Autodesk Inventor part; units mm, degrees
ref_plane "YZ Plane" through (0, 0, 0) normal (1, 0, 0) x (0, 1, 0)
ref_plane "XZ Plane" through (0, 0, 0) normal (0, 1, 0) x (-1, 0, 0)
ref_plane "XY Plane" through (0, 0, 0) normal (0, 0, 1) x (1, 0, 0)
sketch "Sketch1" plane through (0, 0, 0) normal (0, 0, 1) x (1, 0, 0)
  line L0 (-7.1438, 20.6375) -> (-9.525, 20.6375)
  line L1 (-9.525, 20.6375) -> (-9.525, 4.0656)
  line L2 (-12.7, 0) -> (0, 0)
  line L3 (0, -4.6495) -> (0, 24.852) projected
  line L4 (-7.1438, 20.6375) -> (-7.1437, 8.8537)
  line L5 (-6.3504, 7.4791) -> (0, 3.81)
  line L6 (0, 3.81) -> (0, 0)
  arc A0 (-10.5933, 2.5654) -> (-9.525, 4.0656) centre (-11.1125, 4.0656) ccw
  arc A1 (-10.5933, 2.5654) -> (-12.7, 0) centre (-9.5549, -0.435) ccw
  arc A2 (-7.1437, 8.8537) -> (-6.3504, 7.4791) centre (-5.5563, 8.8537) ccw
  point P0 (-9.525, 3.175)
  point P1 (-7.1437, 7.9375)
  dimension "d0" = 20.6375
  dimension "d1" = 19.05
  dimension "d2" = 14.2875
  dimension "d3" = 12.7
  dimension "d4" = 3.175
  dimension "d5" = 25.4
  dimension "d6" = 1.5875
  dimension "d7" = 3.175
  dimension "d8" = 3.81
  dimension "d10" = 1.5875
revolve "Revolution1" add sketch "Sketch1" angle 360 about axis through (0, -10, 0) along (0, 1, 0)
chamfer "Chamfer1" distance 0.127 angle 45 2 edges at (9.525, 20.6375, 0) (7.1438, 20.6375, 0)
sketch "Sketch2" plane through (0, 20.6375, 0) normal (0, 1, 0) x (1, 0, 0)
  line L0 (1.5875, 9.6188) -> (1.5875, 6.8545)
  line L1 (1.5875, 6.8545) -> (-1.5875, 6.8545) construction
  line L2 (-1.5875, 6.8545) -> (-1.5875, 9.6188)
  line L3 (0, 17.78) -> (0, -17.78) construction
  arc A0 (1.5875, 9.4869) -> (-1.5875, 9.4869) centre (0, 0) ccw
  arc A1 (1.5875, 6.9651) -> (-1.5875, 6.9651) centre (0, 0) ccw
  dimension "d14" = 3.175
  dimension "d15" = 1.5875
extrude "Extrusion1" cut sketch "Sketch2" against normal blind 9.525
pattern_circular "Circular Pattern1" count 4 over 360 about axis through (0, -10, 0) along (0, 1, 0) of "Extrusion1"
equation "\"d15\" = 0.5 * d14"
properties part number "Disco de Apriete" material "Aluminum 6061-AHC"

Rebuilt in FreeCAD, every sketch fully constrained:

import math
import FreeCAD as App
import Part
import Sketcher
Q = App.Units.Quantity


def edges_at(feature, points):
    """Names of the edges that pass closest to the given points."""
    edges = feature.Shape.Edges
    near = lambda p: min(range(len(edges)), key=lambda i: edges[i].distToShape(Part.Vertex(*p))[0])
    return sorted({f"Edge{near(p) + 1}" for p in points})

doc = App.newDocument("Part")
body = doc.addObject("PartDesign::Body", "Body")

# Sketch on XY plane
sketch1 = body.newObject("Sketcher::SketchObject", "Sketch")
sketch1.AttachmentSupport = (doc.getObject("XY_Plane"), [""])
sketch1.MapMode = "FlatFace"
sketch1.addGeometry(Part.LineSegment(App.Vector(-7.1, 8.9, 0), App.Vector(-7.1, 20.6, 0)), False)
sketch1.addGeometry(Part.LineSegment(App.Vector(-7.1, 20.6, 0), App.Vector(-9.5, 20.6, 0)), False)
sketch1.addGeometry(Part.LineSegment(App.Vector(-9.5, 20.6, 0), App.Vector(-9.5, 4.1, 0)), False)
sketch1.addGeometry(Part.ArcOfCircle(Part.Circle(App.Vector(-11.1, 4.1, 0), App.Vector(0, 0, 1), 1.6), math.radians(-71), math.radians(0)), False)
sketch1.addGeometry(Part.ArcOfCircle(Part.Circle(App.Vector(-9.6, -0.4, 0), App.Vector(0, 0, 1), 3.2), math.radians(109), math.radians(172)), False)
sketch1.addGeometry(Part.LineSegment(App.Vector(-12.7, 0, 0), App.Vector(0, 0, 0)), False)
sketch1.addGeometry(Part.LineSegment(App.Vector(0, 0, 0), App.Vector(0, 3.8, 0)), False)
sketch1.addGeometry(Part.LineSegment(App.Vector(0, 3.8, 0), App.Vector(-6.4, 7.5, 0)), False)
sketch1.addGeometry(Part.ArcOfCircle(Part.Circle(App.Vector(-5.6, 8.9, 0), App.Vector(0, 0, 1), 1.6), math.radians(180), math.radians(240)), False)
sketch1.addConstraint(Sketcher.Constraint("Coincident", 0, 2, 1, 1))
sketch1.addConstraint(Sketcher.Constraint("Coincident", 1, 2, 2, 1))
sketch1.addConstraint(Sketcher.Constraint("Tangent", 2, 2, 3, 2))
sketch1.addConstraint(Sketcher.Constraint("Tangent", 3, 1, 4, 1))
sketch1.addConstraint(Sketcher.Constraint("Coincident", 4, 2, 5, 1))
sketch1.addConstraint(Sketcher.Constraint("Coincident", 5, 2, 6, 1))
sketch1.addConstraint(Sketcher.Constraint("Coincident", 6, 2, 7, 1))
sketch1.addConstraint(Sketcher.Constraint("Tangent", 7, 2, 8, 2))
sketch1.addConstraint(Sketcher.Constraint("Tangent", 8, 1, 0, 1))
sketch1.addConstraint(Sketcher.Constraint("Vertical", 0))
sketch1.addConstraint(Sketcher.Constraint("Horizontal", 1))
sketch1.addConstraint(Sketcher.Constraint("Vertical", 2))
sketch1.addConstraint(Sketcher.Constraint("Horizontal", 5))
sketch1.addConstraint(Sketcher.Constraint("Vertical", 6))
sketch1.addConstraint(Sketcher.Constraint("Coincident", 5, 2, -1, 1))
sketch1.addConstraint(Sketcher.Constraint("Equal", 3, 8))
sketch1.addConstraint(Sketcher.Constraint("DistanceX", 5, 1, 5, 2, Q("0.5 in")))
sketch1.addConstraint(Sketcher.Constraint("Radius", 3, Q("0.0625 in")))
sketch1.addConstraint(Sketcher.Constraint("Radius", 4, Q("0.125 in")))
sketch1.addConstraint(Sketcher.Constraint("DistanceY", 6, 1, 6, 2, Q("0.15 in")))
sketch1.addConstraint(Sketcher.Constraint("DistanceY", -1, 1, 0, 2, Q("0.8125 in")))
sketch1.addConstraint(Sketcher.Constraint("DistanceX", 4, 2, 3, 3, Q("0.0625 in")))
sketch1.addConstraint(Sketcher.Constraint("DistanceX", 1, 2, 1, 1, Q("0.093748 in")))
sketch1.addConstraint(Sketcher.Constraint("DistanceX", 2, 2, 7, 2, 3.1746))
sketch1.addConstraint(Sketcher.Constraint("DistanceY", -1, 1, 3, 1, Q("0.101 in")))
revolution = body.newObject("PartDesign::Revolution", "Revolution")
revolution.Profile = sketch1
revolution.ReferenceAxis = (sketch1, ["V_Axis"])
revolution.Angle = 360
doc.recompute()

chamfer = body.newObject("PartDesign::Chamfer", "Chamfer")
chamfer.Base = (revolution, edges_at(revolution, [(9.525, 20.637, 0), (7.144, 20.637, 0)]))
chamfer.Size = Q("0.005 in")

# Sketch on XZ plane
sketch2 = body.newObject("Sketcher::SketchObject", "Sketch001")
sketch2.AttachmentSupport = (doc.getObject("XZ_Plane"), [""])
sketch2.MapMode = "FlatFace"
sketch2.AttachmentOffset = App.Placement(App.Vector(0, 0, -0.8125 * 25.4), App.Rotation())
sketch2.addGeometry(Part.LineSegment(App.Vector(1.6, -7, 0), App.Vector(1.6, -9.5, 0)), False)
sketch2.addGeometry(Part.ArcOfCircle(Part.Circle(App.Vector(0, 0, 0), App.Vector(0, 0, 1), 9.6), math.radians(-99.5), math.radians(-80.5)), False)
sketch2.addGeometry(Part.LineSegment(App.Vector(-1.6, -9.5, 0), App.Vector(-1.6, -7, 0)), False)
sketch2.addGeometry(Part.ArcOfCircle(Part.Circle(App.Vector(0, 0, 0), App.Vector(0, 0, 1), 7.1), math.radians(-103), math.radians(-77)), False)
sketch2.addConstraint(Sketcher.Constraint("Coincident", 0, 2, 1, 2))
sketch2.addConstraint(Sketcher.Constraint("Coincident", 1, 1, 2, 1))
sketch2.addConstraint(Sketcher.Constraint("Coincident", 2, 2, 3, 1))
sketch2.addConstraint(Sketcher.Constraint("Coincident", 3, 2, 0, 1))
sketch2.addConstraint(Sketcher.Constraint("Vertical", 0))
sketch2.addConstraint(Sketcher.Constraint("Vertical", 2))
sketch2.addConstraint(Sketcher.Constraint("Coincident", 1, 3, -1, 1))
sketch2.addConstraint(Sketcher.Constraint("Coincident", 3, 3, -1, 1))
sketch2.addConstraint(Sketcher.Constraint("Horizontal", 0, 2, 1, 1))
sketch2.addConstraint(Sketcher.Constraint("DistanceX", -1, 1, 0, 2, Q("0.0625 in")))
sketch2.addConstraint(Sketcher.Constraint("Radius", 3, Q("0.281248 in")))
sketch2.addConstraint(Sketcher.Constraint("Radius", 1, Q("0.3787 in")))
pocket1 = body.newObject("PartDesign::Pocket", "Pocket")
pocket1.Profile = sketch2
pocket1.Length = Q("0.375 in")
pocket1.Reversed = True
doc.recompute()

polarpattern = body.newObject("PartDesign::PolarPattern", "PolarPattern")
polarpattern.Originals = [pocket1]
polarpattern.Axis = (doc.getObject("Y_Axis"), [""])
polarpattern.Angle = 360
polarpattern.Occurrences = 4
body.Tip = polarpattern

doc.recompute()
